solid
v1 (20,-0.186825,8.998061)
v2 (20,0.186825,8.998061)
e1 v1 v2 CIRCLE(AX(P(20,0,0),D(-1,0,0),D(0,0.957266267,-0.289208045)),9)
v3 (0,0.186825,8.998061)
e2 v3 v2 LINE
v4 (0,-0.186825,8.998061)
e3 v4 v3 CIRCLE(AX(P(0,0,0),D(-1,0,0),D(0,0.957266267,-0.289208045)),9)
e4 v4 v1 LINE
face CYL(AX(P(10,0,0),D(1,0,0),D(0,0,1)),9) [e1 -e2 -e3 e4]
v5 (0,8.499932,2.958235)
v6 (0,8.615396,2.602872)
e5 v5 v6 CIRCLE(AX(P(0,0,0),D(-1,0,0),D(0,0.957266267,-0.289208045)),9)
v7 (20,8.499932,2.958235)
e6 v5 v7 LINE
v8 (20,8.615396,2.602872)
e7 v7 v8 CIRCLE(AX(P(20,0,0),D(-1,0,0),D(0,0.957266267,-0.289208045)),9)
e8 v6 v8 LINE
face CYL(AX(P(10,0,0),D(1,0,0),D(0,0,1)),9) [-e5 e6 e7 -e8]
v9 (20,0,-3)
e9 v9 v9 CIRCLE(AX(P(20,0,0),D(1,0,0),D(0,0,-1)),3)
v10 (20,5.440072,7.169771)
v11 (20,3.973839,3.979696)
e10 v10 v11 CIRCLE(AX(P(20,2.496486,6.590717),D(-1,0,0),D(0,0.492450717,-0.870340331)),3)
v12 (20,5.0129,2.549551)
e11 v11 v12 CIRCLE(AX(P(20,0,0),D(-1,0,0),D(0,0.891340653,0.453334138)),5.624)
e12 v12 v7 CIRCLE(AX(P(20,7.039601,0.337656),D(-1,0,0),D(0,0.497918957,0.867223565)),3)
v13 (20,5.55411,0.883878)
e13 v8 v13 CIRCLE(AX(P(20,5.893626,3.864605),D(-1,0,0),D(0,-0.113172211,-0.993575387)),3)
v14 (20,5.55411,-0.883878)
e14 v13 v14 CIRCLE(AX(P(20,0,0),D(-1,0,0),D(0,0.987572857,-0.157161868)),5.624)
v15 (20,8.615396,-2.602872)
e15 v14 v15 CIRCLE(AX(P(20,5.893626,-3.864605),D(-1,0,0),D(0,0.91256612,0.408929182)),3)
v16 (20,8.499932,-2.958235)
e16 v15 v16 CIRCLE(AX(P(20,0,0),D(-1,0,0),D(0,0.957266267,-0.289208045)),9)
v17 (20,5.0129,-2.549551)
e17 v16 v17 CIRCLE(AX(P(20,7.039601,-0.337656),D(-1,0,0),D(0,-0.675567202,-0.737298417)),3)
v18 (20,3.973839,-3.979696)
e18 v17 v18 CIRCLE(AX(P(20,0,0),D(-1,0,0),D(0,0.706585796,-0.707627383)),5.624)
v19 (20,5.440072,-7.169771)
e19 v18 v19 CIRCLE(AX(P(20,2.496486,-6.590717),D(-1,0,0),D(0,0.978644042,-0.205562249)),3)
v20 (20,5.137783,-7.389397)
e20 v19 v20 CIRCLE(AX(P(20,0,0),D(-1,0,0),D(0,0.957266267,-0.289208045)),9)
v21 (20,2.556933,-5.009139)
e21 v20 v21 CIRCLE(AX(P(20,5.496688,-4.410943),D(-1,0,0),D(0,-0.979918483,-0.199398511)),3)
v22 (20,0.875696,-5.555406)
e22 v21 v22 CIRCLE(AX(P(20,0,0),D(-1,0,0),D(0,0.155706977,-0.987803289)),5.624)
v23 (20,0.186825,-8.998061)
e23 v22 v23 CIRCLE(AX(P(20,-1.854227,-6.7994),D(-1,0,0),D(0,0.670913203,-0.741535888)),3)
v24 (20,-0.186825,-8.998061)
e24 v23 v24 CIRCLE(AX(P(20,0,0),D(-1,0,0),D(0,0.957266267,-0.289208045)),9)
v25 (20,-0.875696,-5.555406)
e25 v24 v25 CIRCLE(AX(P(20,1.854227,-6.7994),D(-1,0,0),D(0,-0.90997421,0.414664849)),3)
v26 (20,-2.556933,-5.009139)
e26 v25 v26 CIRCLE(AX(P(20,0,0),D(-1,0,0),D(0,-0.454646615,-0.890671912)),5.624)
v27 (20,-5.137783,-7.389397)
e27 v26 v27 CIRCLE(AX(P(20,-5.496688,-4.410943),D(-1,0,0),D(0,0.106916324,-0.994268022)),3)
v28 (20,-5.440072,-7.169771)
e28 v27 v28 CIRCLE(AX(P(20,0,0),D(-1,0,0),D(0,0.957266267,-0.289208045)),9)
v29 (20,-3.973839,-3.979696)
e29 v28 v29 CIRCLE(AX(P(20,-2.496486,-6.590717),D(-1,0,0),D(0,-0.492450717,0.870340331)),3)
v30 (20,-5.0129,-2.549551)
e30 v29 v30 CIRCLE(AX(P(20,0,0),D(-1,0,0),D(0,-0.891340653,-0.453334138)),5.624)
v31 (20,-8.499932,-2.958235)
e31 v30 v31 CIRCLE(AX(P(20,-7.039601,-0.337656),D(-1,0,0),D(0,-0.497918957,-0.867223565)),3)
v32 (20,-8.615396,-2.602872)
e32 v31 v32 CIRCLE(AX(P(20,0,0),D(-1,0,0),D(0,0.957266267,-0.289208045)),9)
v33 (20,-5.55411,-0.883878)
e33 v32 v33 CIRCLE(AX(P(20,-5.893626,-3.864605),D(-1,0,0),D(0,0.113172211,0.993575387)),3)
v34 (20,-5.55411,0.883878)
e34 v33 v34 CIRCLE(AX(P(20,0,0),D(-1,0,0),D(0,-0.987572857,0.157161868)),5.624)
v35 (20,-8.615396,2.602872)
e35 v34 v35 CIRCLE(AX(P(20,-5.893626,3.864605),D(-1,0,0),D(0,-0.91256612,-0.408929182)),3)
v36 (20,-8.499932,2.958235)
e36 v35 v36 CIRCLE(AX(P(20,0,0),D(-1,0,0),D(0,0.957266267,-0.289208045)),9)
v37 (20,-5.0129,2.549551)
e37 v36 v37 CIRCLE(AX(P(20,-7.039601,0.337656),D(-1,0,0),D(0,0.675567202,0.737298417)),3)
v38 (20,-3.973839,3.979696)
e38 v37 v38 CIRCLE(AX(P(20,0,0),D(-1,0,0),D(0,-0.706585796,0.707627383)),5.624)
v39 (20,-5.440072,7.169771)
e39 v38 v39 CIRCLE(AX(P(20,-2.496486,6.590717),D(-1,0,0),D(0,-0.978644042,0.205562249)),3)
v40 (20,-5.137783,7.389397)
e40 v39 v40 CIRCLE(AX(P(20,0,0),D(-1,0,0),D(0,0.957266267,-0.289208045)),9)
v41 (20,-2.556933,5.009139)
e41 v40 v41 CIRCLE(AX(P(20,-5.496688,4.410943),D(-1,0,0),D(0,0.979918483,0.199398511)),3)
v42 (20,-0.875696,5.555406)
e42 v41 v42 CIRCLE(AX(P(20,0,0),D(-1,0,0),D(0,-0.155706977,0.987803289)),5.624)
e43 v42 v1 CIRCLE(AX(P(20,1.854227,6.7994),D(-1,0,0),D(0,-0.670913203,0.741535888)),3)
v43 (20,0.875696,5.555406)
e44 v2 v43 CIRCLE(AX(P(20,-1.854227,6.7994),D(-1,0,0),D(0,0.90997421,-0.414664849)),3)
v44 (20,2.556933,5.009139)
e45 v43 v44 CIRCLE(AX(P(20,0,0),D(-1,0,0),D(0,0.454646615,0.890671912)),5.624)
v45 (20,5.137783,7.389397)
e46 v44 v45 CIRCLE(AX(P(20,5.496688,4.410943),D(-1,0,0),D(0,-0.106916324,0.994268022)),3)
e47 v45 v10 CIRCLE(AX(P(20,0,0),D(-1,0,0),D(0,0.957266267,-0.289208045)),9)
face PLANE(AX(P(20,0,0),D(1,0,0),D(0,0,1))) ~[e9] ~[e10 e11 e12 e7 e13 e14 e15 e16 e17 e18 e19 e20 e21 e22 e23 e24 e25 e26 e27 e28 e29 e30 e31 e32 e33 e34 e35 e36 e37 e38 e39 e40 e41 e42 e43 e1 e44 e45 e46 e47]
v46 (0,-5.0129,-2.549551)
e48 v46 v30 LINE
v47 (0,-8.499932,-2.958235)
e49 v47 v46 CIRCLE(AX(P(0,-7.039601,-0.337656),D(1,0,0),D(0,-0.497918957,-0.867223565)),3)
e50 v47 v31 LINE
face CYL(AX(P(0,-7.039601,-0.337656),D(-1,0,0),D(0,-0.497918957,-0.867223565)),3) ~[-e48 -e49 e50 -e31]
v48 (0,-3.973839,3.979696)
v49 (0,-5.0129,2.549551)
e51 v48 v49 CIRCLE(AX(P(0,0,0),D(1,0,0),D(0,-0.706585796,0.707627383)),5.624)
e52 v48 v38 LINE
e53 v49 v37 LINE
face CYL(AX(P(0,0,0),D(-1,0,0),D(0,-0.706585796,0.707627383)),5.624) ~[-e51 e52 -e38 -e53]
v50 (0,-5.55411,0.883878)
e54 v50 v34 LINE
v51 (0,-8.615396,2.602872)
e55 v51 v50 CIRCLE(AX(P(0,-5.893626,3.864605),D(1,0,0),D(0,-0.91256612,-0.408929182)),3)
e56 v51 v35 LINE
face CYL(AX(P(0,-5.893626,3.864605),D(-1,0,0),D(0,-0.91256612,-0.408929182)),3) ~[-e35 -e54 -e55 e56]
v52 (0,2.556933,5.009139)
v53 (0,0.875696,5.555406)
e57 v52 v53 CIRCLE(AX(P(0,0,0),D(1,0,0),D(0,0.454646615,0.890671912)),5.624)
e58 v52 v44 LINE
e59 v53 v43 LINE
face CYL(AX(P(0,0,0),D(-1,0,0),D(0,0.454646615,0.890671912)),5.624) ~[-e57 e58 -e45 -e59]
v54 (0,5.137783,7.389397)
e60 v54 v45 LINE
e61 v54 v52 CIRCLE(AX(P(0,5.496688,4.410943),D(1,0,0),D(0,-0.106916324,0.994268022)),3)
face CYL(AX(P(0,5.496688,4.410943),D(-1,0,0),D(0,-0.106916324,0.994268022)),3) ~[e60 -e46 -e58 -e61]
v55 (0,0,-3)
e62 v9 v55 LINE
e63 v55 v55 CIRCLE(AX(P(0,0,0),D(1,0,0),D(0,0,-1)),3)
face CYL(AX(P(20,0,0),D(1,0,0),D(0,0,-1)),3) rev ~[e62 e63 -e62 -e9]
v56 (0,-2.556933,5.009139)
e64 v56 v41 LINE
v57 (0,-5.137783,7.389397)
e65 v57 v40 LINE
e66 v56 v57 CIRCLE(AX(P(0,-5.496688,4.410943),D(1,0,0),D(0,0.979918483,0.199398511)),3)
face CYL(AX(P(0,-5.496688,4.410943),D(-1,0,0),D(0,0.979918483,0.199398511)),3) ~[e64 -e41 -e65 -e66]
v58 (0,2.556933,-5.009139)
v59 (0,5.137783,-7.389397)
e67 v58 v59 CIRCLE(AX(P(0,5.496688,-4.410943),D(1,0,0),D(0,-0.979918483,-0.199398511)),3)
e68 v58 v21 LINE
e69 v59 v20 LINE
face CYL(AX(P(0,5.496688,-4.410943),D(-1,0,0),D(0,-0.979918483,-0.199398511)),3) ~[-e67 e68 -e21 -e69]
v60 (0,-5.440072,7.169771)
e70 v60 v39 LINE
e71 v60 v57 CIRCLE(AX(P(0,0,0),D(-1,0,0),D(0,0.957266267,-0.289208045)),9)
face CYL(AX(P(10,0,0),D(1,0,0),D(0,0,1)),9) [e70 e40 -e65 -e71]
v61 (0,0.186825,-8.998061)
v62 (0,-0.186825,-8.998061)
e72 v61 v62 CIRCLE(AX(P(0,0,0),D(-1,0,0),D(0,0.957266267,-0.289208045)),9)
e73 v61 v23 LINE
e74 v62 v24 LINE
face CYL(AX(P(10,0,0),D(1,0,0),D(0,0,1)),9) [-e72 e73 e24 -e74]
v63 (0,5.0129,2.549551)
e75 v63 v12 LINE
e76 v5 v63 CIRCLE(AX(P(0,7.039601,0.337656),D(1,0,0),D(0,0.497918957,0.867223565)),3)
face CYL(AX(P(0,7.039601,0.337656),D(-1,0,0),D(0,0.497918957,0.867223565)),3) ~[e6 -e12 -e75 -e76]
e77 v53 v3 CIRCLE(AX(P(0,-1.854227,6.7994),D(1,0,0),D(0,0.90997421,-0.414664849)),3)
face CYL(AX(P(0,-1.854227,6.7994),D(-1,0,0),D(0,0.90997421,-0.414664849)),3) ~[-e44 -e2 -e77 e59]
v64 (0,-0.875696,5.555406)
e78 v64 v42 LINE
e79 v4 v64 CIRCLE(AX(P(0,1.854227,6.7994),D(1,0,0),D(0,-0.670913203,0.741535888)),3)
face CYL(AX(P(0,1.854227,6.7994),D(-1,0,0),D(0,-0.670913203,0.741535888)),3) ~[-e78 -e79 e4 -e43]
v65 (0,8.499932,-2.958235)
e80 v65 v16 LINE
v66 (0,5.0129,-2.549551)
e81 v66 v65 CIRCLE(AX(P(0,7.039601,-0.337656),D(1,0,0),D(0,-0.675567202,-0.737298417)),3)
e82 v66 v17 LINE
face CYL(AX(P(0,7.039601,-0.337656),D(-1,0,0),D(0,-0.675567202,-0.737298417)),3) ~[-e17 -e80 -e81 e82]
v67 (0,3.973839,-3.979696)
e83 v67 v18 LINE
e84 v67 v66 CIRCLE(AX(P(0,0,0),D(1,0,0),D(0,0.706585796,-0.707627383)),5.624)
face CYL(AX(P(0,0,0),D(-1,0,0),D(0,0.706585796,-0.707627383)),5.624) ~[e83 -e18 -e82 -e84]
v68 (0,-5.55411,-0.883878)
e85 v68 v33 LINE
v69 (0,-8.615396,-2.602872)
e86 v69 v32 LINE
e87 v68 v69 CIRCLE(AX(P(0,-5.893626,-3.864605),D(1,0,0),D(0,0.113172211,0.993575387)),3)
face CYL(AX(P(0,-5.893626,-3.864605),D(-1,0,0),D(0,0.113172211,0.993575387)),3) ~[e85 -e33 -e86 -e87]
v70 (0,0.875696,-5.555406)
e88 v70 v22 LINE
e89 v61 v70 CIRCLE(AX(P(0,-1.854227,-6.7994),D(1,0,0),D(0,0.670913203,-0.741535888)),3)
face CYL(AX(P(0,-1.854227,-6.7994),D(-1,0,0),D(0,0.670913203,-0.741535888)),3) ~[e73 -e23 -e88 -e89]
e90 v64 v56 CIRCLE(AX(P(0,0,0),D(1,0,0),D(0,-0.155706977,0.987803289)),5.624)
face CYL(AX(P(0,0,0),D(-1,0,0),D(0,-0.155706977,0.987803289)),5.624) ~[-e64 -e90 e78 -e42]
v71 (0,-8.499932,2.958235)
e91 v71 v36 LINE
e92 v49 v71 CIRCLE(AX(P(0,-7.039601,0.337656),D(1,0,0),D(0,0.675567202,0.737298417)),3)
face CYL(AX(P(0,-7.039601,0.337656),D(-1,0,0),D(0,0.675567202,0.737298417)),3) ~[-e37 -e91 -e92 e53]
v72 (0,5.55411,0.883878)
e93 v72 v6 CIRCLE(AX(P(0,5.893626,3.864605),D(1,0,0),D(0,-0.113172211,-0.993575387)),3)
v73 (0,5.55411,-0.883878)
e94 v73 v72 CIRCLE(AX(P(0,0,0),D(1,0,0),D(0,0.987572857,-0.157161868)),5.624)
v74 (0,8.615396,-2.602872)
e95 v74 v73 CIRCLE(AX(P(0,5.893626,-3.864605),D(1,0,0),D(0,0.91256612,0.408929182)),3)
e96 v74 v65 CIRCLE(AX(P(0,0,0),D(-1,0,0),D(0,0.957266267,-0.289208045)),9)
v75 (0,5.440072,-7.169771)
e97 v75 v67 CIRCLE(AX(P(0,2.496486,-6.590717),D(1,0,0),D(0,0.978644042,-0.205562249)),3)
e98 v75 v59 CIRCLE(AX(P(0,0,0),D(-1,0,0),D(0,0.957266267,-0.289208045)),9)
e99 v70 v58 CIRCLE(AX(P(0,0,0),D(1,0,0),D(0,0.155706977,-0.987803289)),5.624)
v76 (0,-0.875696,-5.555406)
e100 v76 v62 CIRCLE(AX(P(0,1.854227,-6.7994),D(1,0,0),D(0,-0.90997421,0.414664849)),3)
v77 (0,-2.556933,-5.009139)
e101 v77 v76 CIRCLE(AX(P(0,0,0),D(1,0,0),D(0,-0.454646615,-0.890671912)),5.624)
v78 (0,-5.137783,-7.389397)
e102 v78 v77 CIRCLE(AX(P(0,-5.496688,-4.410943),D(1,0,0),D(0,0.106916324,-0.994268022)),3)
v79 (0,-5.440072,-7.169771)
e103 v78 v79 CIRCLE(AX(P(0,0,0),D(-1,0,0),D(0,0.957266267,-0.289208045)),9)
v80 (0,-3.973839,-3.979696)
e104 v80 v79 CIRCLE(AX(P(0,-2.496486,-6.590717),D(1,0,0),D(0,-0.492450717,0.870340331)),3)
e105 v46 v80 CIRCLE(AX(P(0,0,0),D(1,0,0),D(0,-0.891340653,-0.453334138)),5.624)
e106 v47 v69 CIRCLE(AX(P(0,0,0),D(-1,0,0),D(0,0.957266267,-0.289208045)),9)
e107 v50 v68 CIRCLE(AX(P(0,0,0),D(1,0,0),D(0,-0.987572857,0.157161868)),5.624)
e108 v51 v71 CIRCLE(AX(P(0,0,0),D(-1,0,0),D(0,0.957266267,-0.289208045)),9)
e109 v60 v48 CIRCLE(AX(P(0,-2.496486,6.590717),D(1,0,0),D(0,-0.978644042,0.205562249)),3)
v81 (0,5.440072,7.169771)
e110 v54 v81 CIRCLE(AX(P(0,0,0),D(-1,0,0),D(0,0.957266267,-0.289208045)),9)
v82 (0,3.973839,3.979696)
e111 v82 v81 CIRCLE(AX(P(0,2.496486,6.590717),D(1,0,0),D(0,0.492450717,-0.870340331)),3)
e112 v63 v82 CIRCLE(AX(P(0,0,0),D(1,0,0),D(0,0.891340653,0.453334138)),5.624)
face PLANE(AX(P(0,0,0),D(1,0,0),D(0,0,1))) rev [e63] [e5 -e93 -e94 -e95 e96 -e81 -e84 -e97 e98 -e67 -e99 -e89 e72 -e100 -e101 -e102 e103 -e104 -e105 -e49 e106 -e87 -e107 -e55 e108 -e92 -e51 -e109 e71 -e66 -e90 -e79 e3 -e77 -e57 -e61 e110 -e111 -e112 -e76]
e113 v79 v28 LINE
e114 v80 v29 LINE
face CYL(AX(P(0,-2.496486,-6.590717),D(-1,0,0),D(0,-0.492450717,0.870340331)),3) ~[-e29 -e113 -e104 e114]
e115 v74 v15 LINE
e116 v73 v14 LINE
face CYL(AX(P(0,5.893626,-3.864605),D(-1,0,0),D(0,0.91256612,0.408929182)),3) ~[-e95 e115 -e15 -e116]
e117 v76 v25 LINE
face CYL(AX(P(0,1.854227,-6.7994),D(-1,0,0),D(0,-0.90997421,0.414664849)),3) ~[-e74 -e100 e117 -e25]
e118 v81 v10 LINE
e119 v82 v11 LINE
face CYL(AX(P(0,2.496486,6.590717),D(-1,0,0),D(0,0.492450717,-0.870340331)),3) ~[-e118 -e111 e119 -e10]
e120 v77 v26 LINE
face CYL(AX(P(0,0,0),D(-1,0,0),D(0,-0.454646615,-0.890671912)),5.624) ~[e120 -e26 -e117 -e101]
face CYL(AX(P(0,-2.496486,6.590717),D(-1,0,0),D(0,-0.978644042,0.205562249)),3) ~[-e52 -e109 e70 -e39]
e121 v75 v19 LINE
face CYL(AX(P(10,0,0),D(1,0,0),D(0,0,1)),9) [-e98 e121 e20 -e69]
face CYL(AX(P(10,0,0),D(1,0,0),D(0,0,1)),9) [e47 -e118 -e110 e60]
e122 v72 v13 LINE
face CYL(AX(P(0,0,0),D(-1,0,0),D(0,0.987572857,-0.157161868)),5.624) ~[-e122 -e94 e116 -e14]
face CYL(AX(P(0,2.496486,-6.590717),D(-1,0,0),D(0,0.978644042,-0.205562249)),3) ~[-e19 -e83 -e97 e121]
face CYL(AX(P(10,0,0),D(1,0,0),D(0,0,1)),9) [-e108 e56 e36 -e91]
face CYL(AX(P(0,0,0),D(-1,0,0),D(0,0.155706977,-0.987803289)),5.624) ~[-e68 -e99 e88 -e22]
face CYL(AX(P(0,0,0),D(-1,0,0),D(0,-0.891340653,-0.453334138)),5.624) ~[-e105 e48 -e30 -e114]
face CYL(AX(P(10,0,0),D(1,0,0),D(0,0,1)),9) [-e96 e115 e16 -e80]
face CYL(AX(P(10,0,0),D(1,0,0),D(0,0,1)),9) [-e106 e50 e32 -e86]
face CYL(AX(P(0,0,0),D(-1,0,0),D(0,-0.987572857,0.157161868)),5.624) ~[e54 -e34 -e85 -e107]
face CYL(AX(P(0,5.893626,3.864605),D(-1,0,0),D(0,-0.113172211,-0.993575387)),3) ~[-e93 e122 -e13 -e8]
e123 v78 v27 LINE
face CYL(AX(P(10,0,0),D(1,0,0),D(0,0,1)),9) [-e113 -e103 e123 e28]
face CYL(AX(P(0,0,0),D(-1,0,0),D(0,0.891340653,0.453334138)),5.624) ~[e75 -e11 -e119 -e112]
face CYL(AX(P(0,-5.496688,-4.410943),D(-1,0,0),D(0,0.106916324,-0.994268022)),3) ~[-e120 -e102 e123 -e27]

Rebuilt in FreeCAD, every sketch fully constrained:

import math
import FreeCAD as App
import Part
import Sketcher
from FreeCAD import Vector
Q = App.Units.Quantity


def add_polygon(sketch, points):
    """Adds a closed chain of lines whose ends are joined by coincident constraints."""
    first, n = sketch.GeometryCount, len(points)
    for a, b in zip(points, points[1:] + points[:1]):
        sketch.addGeometry(Part.LineSegment(App.Vector(*a, 0), App.Vector(*b, 0)), False)
    for i in range(n):
        sketch.addConstraint(Sketcher.Constraint("Coincident", first + i, 2, first + (i + 1) % n, 1))

doc = App.newDocument("Part")
body = doc.addObject("PartDesign::Body", "Body")

sketch1 = body.newObject("Sketcher::SketchObject", "Sketch")
sketch1.AttachmentSupport = (doc.getObject("XZ_Plane"), [""])
sketch1.MapMode = "FlatFace"
add_polygon(sketch1, [(0, -9), (0, 0), (20, 0), (20, -9)])
sketch1.addConstraint([
    Sketcher.Constraint("Vertical", 0),
    Sketcher.Constraint("Horizontal", 1),
    Sketcher.Constraint("Vertical", 2),
    Sketcher.Constraint("Horizontal", 3),
    Sketcher.Constraint("Coincident", 0, 2, -1, 1),
    Sketcher.Constraint("DistanceX", 1, 1, 1, 2, Q("20 mm")),
    Sketcher.Constraint("DistanceY", 0, 1, 0, 2, Q("9 mm")),
])
revolution = body.newObject("PartDesign::Revolution", "Revolution")
revolution.Profile = sketch1
revolution.ReferenceAxis = (sketch1, ["H_Axis"])
revolution.Angle = 360

sketch2 = body.newObject("Sketcher::SketchObject", "Sketch001")
sketch2.AttachmentSupport = (doc.getObject("YZ_Plane"), [""])
sketch2.MapMode = "FlatFace"
sketch2.addGeometry([
    Part.ArcOfCircle(Part.Circle(Vector(0, 0, 0), Vector(0, 0, 1), 5.624), math.radians(-9.042199), math.radians(9.042199)),
    Part.ArcOfCircle(Part.Circle(Vector(5.893626, -3.864605, 0), Vector(0, 0, 1), 3), math.radians(24.137585), math.radians(96.498212)),
    Part.ArcOfCircle(Part.Circle(Vector(0, 0, 0), Vector(0, 0, 1), 9.0254), math.radians(-16.993663), math.radians(16.993663)),
    Part.ArcOfCircle(Part.Circle(Vector(5.893626, 3.864605, 0), Vector(0, 0, 1), 3), math.radians(-96.498212), math.radians(-24.137585)),
], False)
sketch2.addConstraint([
    Sketcher.Constraint("Coincident", 0, 1, 1, 2),
    Sketcher.Constraint("Coincident", 1, 1, 2, 1),
    Sketcher.Constraint("Coincident", 2, 2, 3, 2),
    Sketcher.Constraint("Coincident", 3, 1, 0, 2),
    Sketcher.Constraint("Coincident", 0, 3, -1, 1),
    Sketcher.Constraint("Coincident", 2, 3, -1, 1),
    Sketcher.Constraint("Equal", 1, 3),
    Sketcher.Constraint("Symmetric", 1, 3, 3, 3, -1),
    Sketcher.Constraint("Radius", 1, Q("3 mm")),
    Sketcher.Constraint("Radius", 0, Q("5.624 mm")),
    Sketcher.Constraint("Radius", 2, Q("9.0254 mm")),
    Sketcher.Constraint("DistanceX", 1, 3, 1, 1, Q("2.737698 mm")),
    Sketcher.Constraint("DistanceX", -1, 1, 0, 1, Q("5.55411 mm")),
])
pocket1 = body.newObject("PartDesign::Pocket", "Pocket")
pocket1.Profile = sketch2
pocket1.Type = "ThroughAll"
pocket1.Reversed = True
doc.recompute()

polarpattern = body.newObject("PartDesign::PolarPattern", "PolarPattern")
polarpattern.Originals = [pocket1]
polarpattern.Axis = (doc.getObject("X_Axis"), [""])
polarpattern.Angle = 360
polarpattern.Occurrences = 10
body.Tip = polarpattern

sketch3 = body.newObject("Sketcher::SketchObject", "Sketch002")
sketch3.AttachmentSupport = (doc.getObject("YZ_Plane"), [""])
sketch3.MapMode = "FlatFace"
sketch3.addGeometry(Part.Circle(Vector(0, 0, 0), Vector(0, 0, 1), 2.5), False)
sketch3.addConstraint([
    Sketcher.Constraint("Coincident", 0, 3, -1, 1),
    Sketcher.Constraint("Diameter", 0, Q("5 mm")),
])
pocket2 = body.newObject("PartDesign::Pocket", "Pocket001")
pocket2.Profile = sketch3
pocket2.Length = 100.000102
pocket2.Midplane = True

sketch4 = body.newObject("Sketcher::SketchObject", "Sketch003")
sketch4.AttachmentSupport = (doc.getObject("YZ_Plane"), [""])
sketch4.MapMode = "FlatFace"
sketch4.AttachmentOffset = App.Placement(Vector(0, 0, 20), App.Rotation())
sketch4.addGeometry(Part.Circle(Vector(0, 0, 0), Vector(0, 0, 1), 3), False)
sketch4.addConstraint([
    Sketcher.Constraint("Coincident", 0, 3, -1, 1),
    Sketcher.Constraint("Diameter", 0, Q("6 mm")),
])
pocket3 = body.newObject("PartDesign::Pocket", "Pocket002")
pocket3.Profile = sketch4
pocket3.Length = 26

doc.recompute()
